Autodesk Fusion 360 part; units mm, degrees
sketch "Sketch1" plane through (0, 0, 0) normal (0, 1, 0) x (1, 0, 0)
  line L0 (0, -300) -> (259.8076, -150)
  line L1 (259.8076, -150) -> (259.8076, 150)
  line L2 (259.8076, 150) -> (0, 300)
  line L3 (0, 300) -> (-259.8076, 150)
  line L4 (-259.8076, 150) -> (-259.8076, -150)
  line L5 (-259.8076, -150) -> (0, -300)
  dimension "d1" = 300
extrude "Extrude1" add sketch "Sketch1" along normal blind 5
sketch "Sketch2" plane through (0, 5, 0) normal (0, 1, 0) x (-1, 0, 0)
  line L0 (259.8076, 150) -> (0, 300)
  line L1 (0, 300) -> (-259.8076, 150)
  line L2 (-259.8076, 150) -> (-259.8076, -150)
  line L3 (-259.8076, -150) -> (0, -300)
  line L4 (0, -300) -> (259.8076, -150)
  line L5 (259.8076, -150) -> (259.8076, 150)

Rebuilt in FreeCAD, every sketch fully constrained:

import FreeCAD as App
import Part
import Sketcher

doc = App.newDocument("Part")
body = doc.addObject("PartDesign::Body", "Body")

# Sketch on XZ plane
sketch1 = doc.addObject("Sketcher::SketchObject", "Sketch")
body.addObject(sketch1)
sketch1.AttachmentSupport = (doc.XZ_Plane, [""])
sketch1.MapMode = "FlatFace"
sketch1.addGeometry(Part.LineSegment(App.Vector(-260, 150, 0), App.Vector(0, 300, 0)), False)
sketch1.addGeometry(Part.LineSegment(App.Vector(0, 300, 0), App.Vector(260, 150, 0)), False)
sketch1.addGeometry(Part.LineSegment(App.Vector(260, 150, 0), App.Vector(260, -150, 0)), False)
sketch1.addGeometry(Part.LineSegment(App.Vector(260, -150, 0), App.Vector(0, -300, 0)), False)
sketch1.addGeometry(Part.LineSegment(App.Vector(0, -300, 0), App.Vector(-260, -150, 0)), False)
sketch1.addGeometry(Part.LineSegment(App.Vector(-260, -150, 0), App.Vector(-260, 150, 0)), False)
sketch1.addConstraint(Sketcher.Constraint("Coincident", 0, 2, 1, 1))
sketch1.addConstraint(Sketcher.Constraint("Coincident", 1, 2, 2, 1))
sketch1.addConstraint(Sketcher.Constraint("Coincident", 2, 2, 3, 1))
sketch1.addConstraint(Sketcher.Constraint("Coincident", 3, 2, 4, 1))
sketch1.addConstraint(Sketcher.Constraint("Coincident", 4, 2, 5, 1))
sketch1.addConstraint(Sketcher.Constraint("Coincident", 5, 2, 0, 1))
sketch1.addConstraint(Sketcher.Constraint("Vertical", 2))
sketch1.addConstraint(Sketcher.Constraint("Vertical", 5))
sketch1.addConstraint(Sketcher.Constraint("Symmetric", 0, 2, 3, 2, -1, 1))
sketch1.addConstraint(Sketcher.Constraint("Symmetric", 1, 2, 4, 2, -1, 1))
sketch1.addConstraint(Sketcher.Constraint("PointOnObject", 0, 2, -2))
sketch1.addConstraint(Sketcher.Constraint("Parallel", 0, 3))
sketch1.addConstraint(Sketcher.Constraint("Horizontal", 2, 2, 4, 2))
sketch1.addConstraint(Sketcher.Constraint("DistanceY", 2, 2, 2, 1, 300.0))
sketch1.addConstraint(Sketcher.Constraint("Distance", 0, 300.0))
sketch1.addConstraint(Sketcher.Constraint("DistanceY", -1, 1, 0, 2, 300.0))
pad1 = doc.addObject("PartDesign::Pad", "Pad")
body.addObject(pad1)
pad1.Profile = sketch1
pad1.Length = 5
pad1.Reversed = True

doc.recompute()
